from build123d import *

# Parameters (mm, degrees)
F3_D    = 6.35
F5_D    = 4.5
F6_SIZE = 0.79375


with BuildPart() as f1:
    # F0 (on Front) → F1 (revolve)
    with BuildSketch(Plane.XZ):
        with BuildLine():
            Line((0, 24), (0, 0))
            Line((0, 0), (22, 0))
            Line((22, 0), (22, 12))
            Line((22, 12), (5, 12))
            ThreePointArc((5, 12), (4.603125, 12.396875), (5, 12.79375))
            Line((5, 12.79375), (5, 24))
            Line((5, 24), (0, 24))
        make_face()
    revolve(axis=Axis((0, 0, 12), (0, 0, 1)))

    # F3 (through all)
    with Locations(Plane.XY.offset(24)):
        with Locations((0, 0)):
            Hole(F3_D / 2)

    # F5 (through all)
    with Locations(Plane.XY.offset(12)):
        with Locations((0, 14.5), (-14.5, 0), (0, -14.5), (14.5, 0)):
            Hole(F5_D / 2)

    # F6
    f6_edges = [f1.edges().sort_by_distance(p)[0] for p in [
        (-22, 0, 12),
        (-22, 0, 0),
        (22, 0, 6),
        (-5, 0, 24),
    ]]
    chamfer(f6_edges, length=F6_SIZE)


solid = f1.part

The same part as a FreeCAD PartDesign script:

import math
import FreeCAD as App
import Part
import Sketcher

V = App.Vector
Q = App.Units.Quantity


def edges_at(feature, points):
    """Names of the edges that pass closest to the given points."""
    edges = feature.Shape.Edges
    near = lambda p: min(range(len(edges)), key=lambda i: edges[i].distToShape(Part.Vertex(*p))[0])
    return sorted({f"Edge{near(p) + 1}" for p in points})

doc = App.newDocument("Part")
body = doc.addObject("PartDesign::Body", "Body")

sketch1 = body.newObject("Sketcher::SketchObject", "Sketch")
sketch1.AttachmentSupport = (doc.getObject("XZ_Plane"), [""])
sketch1.MapMode = "FlatFace"
sketch1.addGeometry([
    Part.LineSegment(V(0, 24, 0), V(0, 0, 0)),
    Part.LineSegment(V(0, 0, 0), V(22, 0, 0)),
    Part.LineSegment(V(22, 0, 0), V(22, 12, 0)),
    Part.LineSegment(V(22, 12, 0), V(5, 12, 0)),
    Part.ArcOfCircle(Part.Circle(V(5, 12.4, 0), V(0, 0, 1), 0.4), math.radians(90), math.radians(270)),
    Part.LineSegment(V(5, 12.79, 0), V(5, 24, 0)),
    Part.LineSegment(V(5, 24, 0), V(0, 24, 0)),
], False)
sketch1.addConstraint([
    Sketcher.Constraint("Coincident", 0, 2, 1, 1),
    Sketcher.Constraint("Coincident", 1, 2, 2, 1),
    Sketcher.Constraint("Coincident", 2, 2, 3, 1),
    Sketcher.Constraint("Tangent", 3, 2, 4, 2),
    Sketcher.Constraint("Coincident", 4, 1, 5, 1),
    Sketcher.Constraint("Coincident", 5, 2, 6, 1),
    Sketcher.Constraint("Coincident", 6, 2, 0, 1),
    Sketcher.Constraint("Vertical", 0),
    Sketcher.Constraint("Horizontal", 1),
    Sketcher.Constraint("Vertical", 2),
    Sketcher.Constraint("Horizontal", 3),
    Sketcher.Constraint("Vertical", 5),
    Sketcher.Constraint("Horizontal", 6),
    Sketcher.Constraint("Coincident", 0, 2, -1, 1),
    Sketcher.Constraint("Vertical", 3, 2, 4, 1),
    Sketcher.Constraint("DistanceX", 1, 1, 1, 2, Q("22 mm")),
    Sketcher.Constraint("DistanceX", 3, 2, 3, 1, Q("17 mm")),
    Sketcher.Constraint("DistanceY", 0, 2, 0, 1, Q("24 mm")),
    Sketcher.Constraint("DistanceY", 2, 1, 2, 2, Q("12 mm")),
    Sketcher.Constraint("Radius", 4, Q("0.396875 mm")),
])
revolution = body.newObject("PartDesign::Revolution", "Revolution")
revolution.Profile = sketch1
revolution.ReferenceAxis = (sketch1, ["V_Axis"])
revolution.Angle = 360

sketch2 = body.newObject("Sketcher::SketchObject", "Sketch001")
sketch2.AttachmentSupport = (doc.getObject("XY_Plane"), [""])
sketch2.MapMode = "FlatFace"
sketch2.AttachmentOffset = App.Placement(V(0, 0, 24), App.Rotation())
sketch2.addGeometry(Part.Circle(V(0, 0, 0), V(0, 0, 1), 3.2), False)
sketch2.addConstraint([
    Sketcher.Constraint("Coincident", 0, 3, -1, 1),
    Sketcher.Constraint("Diameter", 0, Q("6.35 mm")),
])
doc.recompute()
hole = body.newObject("PartDesign::Hole", "Hole")
hole.Profile = sketch2
hole.ThreadType = "None"
hole.Diameter = 6.35
hole.DepthType = "ThroughAll"

sketch3 = body.newObject("Sketcher::SketchObject", "Sketch002")
sketch3.AttachmentSupport = (doc.getObject("XY_Plane"), [""])
sketch3.MapMode = "FlatFace"
sketch3.AttachmentOffset = App.Placement(V(0, 0, 12), App.Rotation())
sketch3.addGeometry([
    Part.Circle(V(0, 14.5, 0), V(0, 0, 1), 2.2),
    Part.Circle(V(-14.5, 0, 0), V(0, 0, 1), 2.2),
    Part.Circle(V(0, -14.5, 0), V(0, 0, 1), 2.2),
    Part.Circle(V(14.5, 0, 0), V(0, 0, 1), 2.2),
], False)
sketch3.addConstraint([
    Sketcher.Constraint("Equal", 0, 1),
    Sketcher.Constraint("Equal", 1, 2),
    Sketcher.Constraint("Equal", 2, 3),
    Sketcher.Constraint("Symmetric", 0, 3, 2, 3, -1, 1),
    Sketcher.Constraint("Symmetric", 1, 3, 3, 3, -1, 1),
    Sketcher.Constraint("PointOnObject", 0, 3, -2),
    Sketcher.Constraint("PointOnObject", 1, 3, -1),
    Sketcher.Constraint("Diameter", 0, Q("4.5 mm")),
    Sketcher.Constraint("DistanceY", 2, 3, 0, 3, Q("29 mm")),
    Sketcher.Constraint("DistanceX", 1, 3, 3, 3, Q("29 mm")),
])
doc.recompute()
hole2 = body.newObject("PartDesign::Hole", "Hole001")
hole2.Profile = sketch3
hole2.ThreadType = "None"
hole2.Diameter = 4.5
hole2.DepthType = "ThroughAll"
doc.recompute()

chamfer = body.newObject("PartDesign::Chamfer", "Chamfer")
chamfer.Base = (hole2, edges_at(hole2, [
    (-22, 0, 12),
    (-22, 0, 0),
    (22, 0, 6),
    (-5, 0, 24),
]))
chamfer.Size = 0.79375

doc.recompute()
